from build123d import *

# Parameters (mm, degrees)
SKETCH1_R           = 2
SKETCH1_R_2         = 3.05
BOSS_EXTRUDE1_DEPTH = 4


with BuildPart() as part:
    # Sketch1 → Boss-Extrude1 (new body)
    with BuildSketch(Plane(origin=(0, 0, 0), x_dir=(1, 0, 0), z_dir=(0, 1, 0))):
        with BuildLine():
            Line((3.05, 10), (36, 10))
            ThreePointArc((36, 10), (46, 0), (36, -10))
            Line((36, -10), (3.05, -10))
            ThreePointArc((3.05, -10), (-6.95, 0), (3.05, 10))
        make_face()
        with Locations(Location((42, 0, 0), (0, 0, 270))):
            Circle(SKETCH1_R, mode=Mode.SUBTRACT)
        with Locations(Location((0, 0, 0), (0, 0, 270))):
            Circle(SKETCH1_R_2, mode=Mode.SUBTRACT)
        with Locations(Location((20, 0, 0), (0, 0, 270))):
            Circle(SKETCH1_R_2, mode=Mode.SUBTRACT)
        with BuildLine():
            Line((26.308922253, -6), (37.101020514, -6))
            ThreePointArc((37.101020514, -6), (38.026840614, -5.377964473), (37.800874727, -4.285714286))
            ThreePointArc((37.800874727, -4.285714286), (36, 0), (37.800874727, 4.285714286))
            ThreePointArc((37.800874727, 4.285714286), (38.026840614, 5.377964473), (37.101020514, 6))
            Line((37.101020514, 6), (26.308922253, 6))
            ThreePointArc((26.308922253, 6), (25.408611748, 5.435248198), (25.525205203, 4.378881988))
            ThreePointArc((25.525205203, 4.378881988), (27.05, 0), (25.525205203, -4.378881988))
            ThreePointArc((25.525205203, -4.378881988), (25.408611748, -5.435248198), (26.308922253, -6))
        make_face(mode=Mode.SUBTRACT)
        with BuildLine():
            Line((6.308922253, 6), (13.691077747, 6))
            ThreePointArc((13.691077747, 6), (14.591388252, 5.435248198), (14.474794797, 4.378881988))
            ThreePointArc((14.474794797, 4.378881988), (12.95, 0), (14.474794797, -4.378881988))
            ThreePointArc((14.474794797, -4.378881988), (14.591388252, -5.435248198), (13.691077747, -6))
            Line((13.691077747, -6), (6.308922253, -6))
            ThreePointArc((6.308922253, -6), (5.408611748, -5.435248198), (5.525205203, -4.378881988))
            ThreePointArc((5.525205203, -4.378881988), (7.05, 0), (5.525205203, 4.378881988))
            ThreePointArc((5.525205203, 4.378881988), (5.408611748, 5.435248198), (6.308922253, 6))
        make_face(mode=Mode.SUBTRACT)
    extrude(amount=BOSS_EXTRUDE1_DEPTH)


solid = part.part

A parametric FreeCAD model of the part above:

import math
import FreeCAD as App
import Part
import Sketcher
Q = App.Units.Quantity

doc = App.newDocument("Part")
body = doc.addObject("PartDesign::Body", "Body")

sketch1 = doc.addObject("Sketcher::SketchObject", "Sketch")
body.addObject(sketch1)
sketch1.AttachmentSupport = (doc.XZ_Plane, [""])
sketch1.MapMode = "FlatFace"
sketch1.addGeometry([
    Part.LineSegment(App.Vector(36, -10, 0), App.Vector(3, -10, 0)),
    Part.ArcOfCircle(Part.Circle(App.Vector(3, 0, 0), App.Vector(0, 0, 1), 10), math.radians(90), math.radians(270)),
    Part.LineSegment(App.Vector(3, 10, 0), App.Vector(36, 10, 0)),
    Part.ArcOfCircle(Part.Circle(App.Vector(36, 0, 0), App.Vector(0, 0, 1), 10), math.radians(-90), math.radians(90)),
    Part.Circle(App.Vector(42, 0, 0), App.Vector(0, 0, 1), 2),
    Part.ArcOfCircle(Part.Circle(App.Vector(26.3, 5, 0), App.Vector(0, 0, 1), 1), math.radians(90), math.radians(218)),
    Part.ArcOfCircle(Part.Circle(App.Vector(20, 0, 0), App.Vector(0, 0, 1), 7), math.radians(-38), math.radians(38)),
    Part.ArcOfCircle(Part.Circle(App.Vector(26.3, -5, 0), App.Vector(0, 0, 1), 1), math.radians(142), math.radians(270)),
    Part.LineSegment(App.Vector(26.3, -6, 0), App.Vector(37.1, -6, 0)),
    Part.ArcOfCircle(Part.Circle(App.Vector(37.1, -5, 0), App.Vector(0, 0, 1), 1), math.radians(-90), math.radians(46)),
    Part.ArcOfCircle(Part.Circle(App.Vector(42, 0, 0), App.Vector(0, 0, 1), 6), math.radians(134), math.radians(226)),
    Part.ArcOfCircle(Part.Circle(App.Vector(37.1, 5, 0), App.Vector(0, 0, 1), 1), math.radians(-46), math.radians(90)),
    Part.LineSegment(App.Vector(37.1, 6, 0), App.Vector(26.3, 6, 0)),
    Part.Circle(App.Vector(20, 0, 0), App.Vector(0, 0, 1), 3),
    Part.LineSegment(App.Vector(6.3, -6, 0), App.Vector(13.7, -6, 0)),
    Part.ArcOfCircle(Part.Circle(App.Vector(13.7, -5, 0), App.Vector(0, 0, 1), 1), math.radians(-90), math.radians(38)),
    Part.ArcOfCircle(Part.Circle(App.Vector(20, 0, 0), App.Vector(0, 0, 1), 7), math.radians(142), math.radians(218)),
    Part.ArcOfCircle(Part.Circle(App.Vector(13.7, 5, 0), App.Vector(0, 0, 1), 1), math.radians(-38), math.radians(90)),
    Part.LineSegment(App.Vector(13.7, 6, 0), App.Vector(6.3, 6, 0)),
    Part.ArcOfCircle(Part.Circle(App.Vector(6.3, 5, 0), App.Vector(0, 0, 1), 1), math.radians(90), math.radians(218)),
    Part.ArcOfCircle(Part.Circle(App.Vector(0, 0, 0), App.Vector(0, 0, 1), 7), math.radians(-38), math.radians(38)),
    Part.ArcOfCircle(Part.Circle(App.Vector(6.3, -5, 0), App.Vector(0, 0, 1), 1), math.radians(142), math.radians(270)),
    Part.Circle(App.Vector(0, 0, 0), App.Vector(0, 0, 1), 3),
], False)
sketch1.addConstraint([
    Sketcher.Constraint("Tangent", 0, 2, 1, 2),
    Sketcher.Constraint("Tangent", 1, 1, 2, 1),
    Sketcher.Constraint("Tangent", 2, 2, 3, 2),
    Sketcher.Constraint("Tangent", 3, 1, 0, 1),
    Sketcher.Constraint("Tangent", 5, 2, 6, 2),
    Sketcher.Constraint("Tangent", 6, 1, 7, 1),
    Sketcher.Constraint("Tangent", 7, 2, 8, 1),
    Sketcher.Constraint("Tangent", 8, 2, 9, 1),
    Sketcher.Constraint("Tangent", 9, 2, 10, 2),
    Sketcher.Constraint("Tangent", 10, 1, 11, 1),
    Sketcher.Constraint("Tangent", 11, 2, 12, 1),
    Sketcher.Constraint("Tangent", 12, 2, 5, 1),
    Sketcher.Constraint("Tangent", 14, 2, 15, 1),
    Sketcher.Constraint("Tangent", 15, 2, 16, 2),
    Sketcher.Constraint("Tangent", 16, 1, 17, 1),
    Sketcher.Constraint("Tangent", 17, 2, 18, 1),
    Sketcher.Constraint("Tangent", 18, 2, 19, 1),
    Sketcher.Constraint("Tangent", 19, 2, 20, 2),
    Sketcher.Constraint("Tangent", 20, 1, 21, 1),
    Sketcher.Constraint("Tangent", 21, 2, 14, 1),
    Sketcher.Constraint("Horizontal", 0),
    Sketcher.Constraint("Horizontal", 2),
    Sketcher.Constraint("Horizontal", 8),
    Sketcher.Constraint("Horizontal", 12),
    Sketcher.Constraint("Horizontal", 14),
    Sketcher.Constraint("Horizontal", 18),
    Sketcher.Constraint("Coincident", 20, 3, -1, 1),
    Sketcher.Constraint("Coincident", 22, 3, -1, 1),
    Sketcher.Constraint("Coincident", 10, 3, 4, 3),
    Sketcher.Constraint("Coincident", 13, 3, 6, 3),
    Sketcher.Constraint("Coincident", 16, 3, 6, 3),
    Sketcher.Constraint("Equal", 5, 7),
    Sketcher.Constraint("Equal", 7, 9),
    Sketcher.Constraint("Equal", 9, 11),
    Sketcher.Constraint("Equal", 11, 15),
    Sketcher.Constraint("Equal", 6, 16),
    Sketcher.Constraint("Equal", 15, 17),
    Sketcher.Constraint("Equal", 17, 19),
    Sketcher.Constraint("Equal", 16, 20),
    Sketcher.Constraint("Equal", 19, 21),
    Sketcher.Constraint("Equal", 13, 22),
    Sketcher.Constraint("Symmetric", 5, 3, 7, 3, -1),
    Sketcher.Constraint("PointOnObject", 1, 3, -1),
    Sketcher.Constraint("PointOnObject", 4, 3, -1),
    Sketcher.Constraint("Horizontal", 9, 3, 15, 3),
    Sketcher.Constraint("Horizontal", 11, 3, 17, 3),
    Sketcher.Constraint("Diameter", 4, Q("4 mm")),
    Sketcher.Constraint("Radius", 1, Q("10 mm")),
    Sketcher.Constraint("Radius", 5, Q("1 mm")),
    Sketcher.Constraint("Radius", 10, Q("6 mm")),
    Sketcher.Constraint("Diameter", 13, Q("6.1 mm")),
    Sketcher.Constraint("Radius", 6, Q("7.05 mm")),
    Sketcher.Constraint("DistanceX", -1, 1, 3, 3, Q("36 mm")),
    Sketcher.Constraint("DistanceX", -1, 1, 4, 3, Q("42 mm")),
    Sketcher.Constraint("DistanceY", -1, 1, 5, 3, Q("5 mm")),
    Sketcher.Constraint("DistanceX", -1, 1, 6, 3, Q("20 mm")),
    Sketcher.Constraint("DistanceX", 0, 2, 0, 1, Q("32.95 mm")),
])
pad1 = doc.addObject("PartDesign::Pad", "Pad")
body.addObject(pad1)
pad1.Profile = sketch1
pad1.Length = 4
pad1.Reversed = True

doc.recompute()
